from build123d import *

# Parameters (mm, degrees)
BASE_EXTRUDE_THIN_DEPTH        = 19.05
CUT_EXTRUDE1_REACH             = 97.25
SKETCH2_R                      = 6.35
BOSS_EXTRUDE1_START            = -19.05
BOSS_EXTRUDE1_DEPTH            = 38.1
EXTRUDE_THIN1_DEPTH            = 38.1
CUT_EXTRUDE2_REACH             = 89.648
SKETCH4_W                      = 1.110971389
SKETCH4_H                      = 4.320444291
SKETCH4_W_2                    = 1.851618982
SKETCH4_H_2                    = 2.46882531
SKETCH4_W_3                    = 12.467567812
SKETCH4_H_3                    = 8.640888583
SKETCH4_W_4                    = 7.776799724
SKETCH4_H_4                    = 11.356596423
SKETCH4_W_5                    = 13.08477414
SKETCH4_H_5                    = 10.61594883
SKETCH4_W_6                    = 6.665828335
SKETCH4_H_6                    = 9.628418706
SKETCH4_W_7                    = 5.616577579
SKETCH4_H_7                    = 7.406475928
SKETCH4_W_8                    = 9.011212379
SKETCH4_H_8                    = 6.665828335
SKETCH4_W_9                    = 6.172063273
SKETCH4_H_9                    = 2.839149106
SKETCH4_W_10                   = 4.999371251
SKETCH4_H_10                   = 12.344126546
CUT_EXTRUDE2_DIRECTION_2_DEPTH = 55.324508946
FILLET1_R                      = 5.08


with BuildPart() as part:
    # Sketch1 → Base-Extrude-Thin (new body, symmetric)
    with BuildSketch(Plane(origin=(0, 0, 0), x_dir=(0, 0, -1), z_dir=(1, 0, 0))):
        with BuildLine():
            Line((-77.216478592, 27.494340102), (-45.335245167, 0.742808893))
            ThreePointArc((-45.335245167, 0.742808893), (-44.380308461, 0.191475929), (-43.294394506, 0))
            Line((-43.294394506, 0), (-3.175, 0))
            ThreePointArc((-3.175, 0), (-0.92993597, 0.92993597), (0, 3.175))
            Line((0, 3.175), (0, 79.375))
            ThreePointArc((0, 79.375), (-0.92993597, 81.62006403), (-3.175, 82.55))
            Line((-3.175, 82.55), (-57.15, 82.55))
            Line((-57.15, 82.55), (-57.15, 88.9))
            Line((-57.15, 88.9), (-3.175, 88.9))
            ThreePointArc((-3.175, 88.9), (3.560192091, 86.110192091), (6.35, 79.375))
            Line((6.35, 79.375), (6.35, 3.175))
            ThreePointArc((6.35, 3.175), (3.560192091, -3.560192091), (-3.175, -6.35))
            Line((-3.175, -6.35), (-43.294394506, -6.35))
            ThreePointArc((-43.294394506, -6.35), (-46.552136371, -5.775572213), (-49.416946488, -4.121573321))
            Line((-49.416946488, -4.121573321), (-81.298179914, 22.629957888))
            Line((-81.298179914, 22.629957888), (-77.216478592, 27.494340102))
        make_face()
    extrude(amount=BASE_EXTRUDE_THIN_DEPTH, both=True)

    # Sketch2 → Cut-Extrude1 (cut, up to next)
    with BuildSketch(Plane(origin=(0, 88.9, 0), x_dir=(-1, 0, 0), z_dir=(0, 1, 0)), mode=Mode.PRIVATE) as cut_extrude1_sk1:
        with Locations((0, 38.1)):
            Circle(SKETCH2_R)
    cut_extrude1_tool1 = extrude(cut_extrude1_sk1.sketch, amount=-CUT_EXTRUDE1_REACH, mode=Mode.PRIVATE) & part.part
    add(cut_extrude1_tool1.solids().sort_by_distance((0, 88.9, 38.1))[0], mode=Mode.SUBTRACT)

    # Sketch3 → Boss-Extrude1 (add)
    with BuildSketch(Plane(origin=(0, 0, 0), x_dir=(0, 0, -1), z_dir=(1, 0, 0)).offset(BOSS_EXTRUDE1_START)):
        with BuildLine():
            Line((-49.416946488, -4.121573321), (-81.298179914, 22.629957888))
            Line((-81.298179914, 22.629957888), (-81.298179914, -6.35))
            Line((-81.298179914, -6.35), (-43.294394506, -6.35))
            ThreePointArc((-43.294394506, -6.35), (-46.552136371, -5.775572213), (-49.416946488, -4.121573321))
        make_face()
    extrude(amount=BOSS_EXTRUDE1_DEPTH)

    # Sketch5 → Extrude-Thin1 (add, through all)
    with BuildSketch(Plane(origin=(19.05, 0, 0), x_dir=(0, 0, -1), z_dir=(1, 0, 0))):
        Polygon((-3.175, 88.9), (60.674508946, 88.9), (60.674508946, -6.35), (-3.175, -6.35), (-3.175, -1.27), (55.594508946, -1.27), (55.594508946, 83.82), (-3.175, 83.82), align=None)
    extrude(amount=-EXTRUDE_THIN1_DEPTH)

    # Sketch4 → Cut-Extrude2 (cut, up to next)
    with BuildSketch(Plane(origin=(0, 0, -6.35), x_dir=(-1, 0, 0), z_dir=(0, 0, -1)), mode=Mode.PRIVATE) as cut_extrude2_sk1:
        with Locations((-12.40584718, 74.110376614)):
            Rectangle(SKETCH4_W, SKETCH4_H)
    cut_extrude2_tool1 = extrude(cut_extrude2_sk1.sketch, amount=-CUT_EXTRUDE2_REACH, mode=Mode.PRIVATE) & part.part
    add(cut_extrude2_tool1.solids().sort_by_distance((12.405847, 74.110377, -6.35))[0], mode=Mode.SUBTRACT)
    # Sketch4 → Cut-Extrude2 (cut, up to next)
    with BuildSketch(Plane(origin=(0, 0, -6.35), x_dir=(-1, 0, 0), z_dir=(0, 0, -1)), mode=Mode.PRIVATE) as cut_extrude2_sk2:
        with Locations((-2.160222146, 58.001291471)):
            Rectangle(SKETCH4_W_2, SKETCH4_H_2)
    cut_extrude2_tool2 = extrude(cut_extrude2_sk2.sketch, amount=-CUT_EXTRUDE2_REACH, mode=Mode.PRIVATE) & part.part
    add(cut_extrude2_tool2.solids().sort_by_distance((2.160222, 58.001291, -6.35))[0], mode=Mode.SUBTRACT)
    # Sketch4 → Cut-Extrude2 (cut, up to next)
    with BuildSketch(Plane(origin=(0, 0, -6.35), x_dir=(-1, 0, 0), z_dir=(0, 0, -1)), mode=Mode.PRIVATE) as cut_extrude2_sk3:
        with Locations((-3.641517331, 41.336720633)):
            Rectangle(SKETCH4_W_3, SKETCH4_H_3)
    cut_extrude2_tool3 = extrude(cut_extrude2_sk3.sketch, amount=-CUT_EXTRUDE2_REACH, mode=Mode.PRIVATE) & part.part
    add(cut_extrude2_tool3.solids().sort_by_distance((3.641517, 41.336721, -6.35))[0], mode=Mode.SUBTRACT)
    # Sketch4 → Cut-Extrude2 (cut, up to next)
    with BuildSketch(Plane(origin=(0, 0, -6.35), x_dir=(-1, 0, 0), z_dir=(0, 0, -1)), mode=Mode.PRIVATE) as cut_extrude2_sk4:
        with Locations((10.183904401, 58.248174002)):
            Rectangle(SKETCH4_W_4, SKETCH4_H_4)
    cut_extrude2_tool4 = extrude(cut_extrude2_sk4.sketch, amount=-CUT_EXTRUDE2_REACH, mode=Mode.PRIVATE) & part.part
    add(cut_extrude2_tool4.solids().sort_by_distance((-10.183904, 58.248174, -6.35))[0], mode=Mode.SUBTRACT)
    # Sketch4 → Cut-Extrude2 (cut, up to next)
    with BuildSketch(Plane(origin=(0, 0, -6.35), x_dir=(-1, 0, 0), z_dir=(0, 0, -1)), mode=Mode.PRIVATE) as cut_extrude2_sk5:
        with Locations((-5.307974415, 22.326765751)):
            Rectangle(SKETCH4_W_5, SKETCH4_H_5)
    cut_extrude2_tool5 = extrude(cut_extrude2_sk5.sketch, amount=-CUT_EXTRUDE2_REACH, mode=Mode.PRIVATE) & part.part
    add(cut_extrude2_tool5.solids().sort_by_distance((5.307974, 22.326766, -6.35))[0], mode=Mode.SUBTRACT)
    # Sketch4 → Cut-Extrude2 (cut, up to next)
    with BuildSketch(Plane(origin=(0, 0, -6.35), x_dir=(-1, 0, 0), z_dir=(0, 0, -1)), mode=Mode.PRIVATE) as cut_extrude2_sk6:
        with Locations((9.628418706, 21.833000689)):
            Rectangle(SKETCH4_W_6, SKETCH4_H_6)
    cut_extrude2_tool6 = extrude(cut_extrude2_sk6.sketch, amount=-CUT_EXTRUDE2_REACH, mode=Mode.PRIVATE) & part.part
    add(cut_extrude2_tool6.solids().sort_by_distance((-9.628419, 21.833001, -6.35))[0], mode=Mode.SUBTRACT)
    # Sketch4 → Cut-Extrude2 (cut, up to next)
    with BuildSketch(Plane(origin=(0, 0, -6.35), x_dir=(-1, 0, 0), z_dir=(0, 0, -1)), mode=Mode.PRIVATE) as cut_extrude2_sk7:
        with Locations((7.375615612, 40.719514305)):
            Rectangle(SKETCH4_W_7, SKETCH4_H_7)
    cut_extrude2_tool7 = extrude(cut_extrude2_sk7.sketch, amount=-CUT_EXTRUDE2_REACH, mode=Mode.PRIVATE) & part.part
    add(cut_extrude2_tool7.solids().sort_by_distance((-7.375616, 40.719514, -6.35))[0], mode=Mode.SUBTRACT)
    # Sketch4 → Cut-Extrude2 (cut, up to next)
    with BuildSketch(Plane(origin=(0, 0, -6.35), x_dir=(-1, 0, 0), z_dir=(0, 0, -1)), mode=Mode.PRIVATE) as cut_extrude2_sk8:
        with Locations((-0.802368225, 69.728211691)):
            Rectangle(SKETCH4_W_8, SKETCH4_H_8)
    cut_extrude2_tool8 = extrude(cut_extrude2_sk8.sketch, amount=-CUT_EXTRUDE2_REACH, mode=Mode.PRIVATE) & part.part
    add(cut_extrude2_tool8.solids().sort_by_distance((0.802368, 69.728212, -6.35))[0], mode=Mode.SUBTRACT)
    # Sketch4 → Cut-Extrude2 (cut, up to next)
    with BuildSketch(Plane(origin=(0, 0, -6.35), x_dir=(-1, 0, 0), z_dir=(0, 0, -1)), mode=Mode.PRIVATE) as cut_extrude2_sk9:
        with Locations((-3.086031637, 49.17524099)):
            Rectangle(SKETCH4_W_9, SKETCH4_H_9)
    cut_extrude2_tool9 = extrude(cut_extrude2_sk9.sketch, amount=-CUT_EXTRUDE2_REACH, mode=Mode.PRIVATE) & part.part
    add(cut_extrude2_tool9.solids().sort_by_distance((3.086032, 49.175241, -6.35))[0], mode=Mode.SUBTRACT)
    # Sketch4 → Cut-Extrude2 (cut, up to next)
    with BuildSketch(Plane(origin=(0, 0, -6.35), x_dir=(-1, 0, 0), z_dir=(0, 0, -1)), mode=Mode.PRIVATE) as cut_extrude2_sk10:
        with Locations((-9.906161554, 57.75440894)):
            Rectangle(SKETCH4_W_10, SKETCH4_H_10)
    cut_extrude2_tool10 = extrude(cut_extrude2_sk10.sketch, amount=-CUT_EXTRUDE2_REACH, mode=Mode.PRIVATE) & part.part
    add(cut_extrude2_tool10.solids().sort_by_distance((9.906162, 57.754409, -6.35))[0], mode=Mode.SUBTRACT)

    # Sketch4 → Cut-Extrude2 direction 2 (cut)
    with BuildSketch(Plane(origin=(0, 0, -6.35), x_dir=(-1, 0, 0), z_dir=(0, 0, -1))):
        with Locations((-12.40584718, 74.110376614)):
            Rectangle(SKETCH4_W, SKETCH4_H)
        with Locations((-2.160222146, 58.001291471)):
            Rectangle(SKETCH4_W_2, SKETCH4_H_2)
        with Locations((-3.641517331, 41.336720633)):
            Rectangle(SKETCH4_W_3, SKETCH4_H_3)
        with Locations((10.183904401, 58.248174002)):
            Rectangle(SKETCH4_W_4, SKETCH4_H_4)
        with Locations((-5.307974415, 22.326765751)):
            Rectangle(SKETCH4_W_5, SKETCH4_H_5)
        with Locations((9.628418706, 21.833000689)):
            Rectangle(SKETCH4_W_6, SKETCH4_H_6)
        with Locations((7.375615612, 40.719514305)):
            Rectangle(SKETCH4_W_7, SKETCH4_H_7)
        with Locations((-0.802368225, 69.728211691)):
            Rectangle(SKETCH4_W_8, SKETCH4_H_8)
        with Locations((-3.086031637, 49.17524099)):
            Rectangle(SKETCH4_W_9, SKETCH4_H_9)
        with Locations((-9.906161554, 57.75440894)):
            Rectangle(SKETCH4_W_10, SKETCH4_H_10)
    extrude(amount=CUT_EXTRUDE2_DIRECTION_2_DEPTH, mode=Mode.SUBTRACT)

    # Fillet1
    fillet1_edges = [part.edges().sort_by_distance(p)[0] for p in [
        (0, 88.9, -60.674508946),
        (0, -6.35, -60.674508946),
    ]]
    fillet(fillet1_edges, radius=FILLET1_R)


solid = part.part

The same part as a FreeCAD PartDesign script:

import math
import FreeCAD as App
import Part
import Sketcher
from FreeCAD import Vector
Q = App.Units.Quantity


def edges_at(feature, points):
    """Names of the edges that pass closest to the given points."""
    edges = feature.Shape.Edges
    near = lambda p: min(range(len(edges)), key=lambda i: edges[i].distToShape(Part.Vertex(*p))[0])
    return sorted({f"Edge{near(p) + 1}" for p in points})

doc = App.newDocument("Part")
body = doc.addObject("PartDesign::Body", "Body")

# Sketch on YZ plane
sketch1 = body.newObject("Sketcher::SketchObject", "Sketch")
sketch1.AttachmentSupport = (doc.getObject("YZ_Plane"), [""])
sketch1.MapMode = "FlatFace"
sketch1.addGeometry([
    Part.LineSegment(Vector(0.7, 45.3, 0), Vector(27.5, 77.2, 0)),  # 0
    Part.LineSegment(Vector(27.5, 77.2, 0), Vector(22.6, 81.3, 0)),  # 1
    Part.LineSegment(Vector(22.6, 81.3, 0), Vector(-4.1, 49.4, 0)),  # 2
    Part.ArcOfCircle(Part.Circle(Vector(3.2, 43.3, 0), Vector(0, 0, 1), 9.5), math.radians(140), math.radians(180)),  # 3
    Part.LineSegment(Vector(-6.3, 43.3, 0), Vector(-6.3, 3.2, 0)),  # 4
    Part.ArcOfCircle(Part.Circle(Vector(3.2, 3.2, 0), Vector(0, 0, 1), 9.5), math.radians(180), math.radians(270)),  # 5
    Part.LineSegment(Vector(3.2, -6.3, 0), Vector(79.4, -6.3, 0)),  # 6
    Part.ArcOfCircle(Part.Circle(Vector(79.4, 3.2, 0), Vector(0, 0, 1), 9.5), math.radians(-90), math.radians(0)),  # 7
    Part.LineSegment(Vector(88.9, 3.2, 0), Vector(88.9, 57.1, 0)),  # 8
    Part.LineSegment(Vector(88.9, 57.1, 0), Vector(82.5, 57.1, 0)),  # 9
    Part.LineSegment(Vector(82.5, 57.1, 0), Vector(82.5, 3.2, 0)),  # 10
    Part.ArcOfCircle(Part.Circle(Vector(79.4, 3.2, 0), Vector(0, 0, 1), 3.2), math.radians(-90), math.radians(0)),  # 11
    Part.LineSegment(Vector(79.4, 0, 0), Vector(3.2, 0, 0)),  # 12
    Part.ArcOfCircle(Part.Circle(Vector(3.2, 3.2, 0), Vector(0, 0, 1), 3.2), math.radians(-180), math.radians(-90)),  # 13
    Part.LineSegment(Vector(0, 3.2, 0), Vector(0, 43.3, 0)),  # 14
    Part.ArcOfCircle(Part.Circle(Vector(3.2, 43.3, 0), Vector(0, 0, 1), 3.2), math.radians(140), math.radians(180)),  # 15
], False)
sketch1.addConstraint([
    Sketcher.Constraint("Coincident", 0, 2, 1, 1),
    Sketcher.Constraint("Coincident", 1, 2, 2, 1),
    Sketcher.Constraint("Tangent", 2, 2, 3, 1),
    Sketcher.Constraint("Tangent", 3, 2, 4, 1),
    Sketcher.Constraint("Tangent", 4, 2, 5, 1),
    Sketcher.Constraint("Tangent", 5, 2, 6, 1),
    Sketcher.Constraint("Tangent", 6, 2, 7, 1),
    Sketcher.Constraint("Tangent", 7, 2, 8, 1),
    Sketcher.Constraint("Coincident", 8, 2, 9, 1),
    Sketcher.Constraint("Coincident", 9, 2, 10, 1),
    Sketcher.Constraint("Tangent", 10, 2, 11, 2),
    Sketcher.Constraint("Tangent", 11, 1, 12, 1),
    Sketcher.Constraint("Tangent", 12, 2, 13, 2),
    Sketcher.Constraint("Tangent", 13, 1, 14, 1),
    Sketcher.Constraint("Tangent", 14, 2, 15, 2),
    Sketcher.Constraint("Tangent", 15, 1, 0, 1),
    Sketcher.Constraint("Vertical", 4),
    Sketcher.Constraint("Horizontal", 6),
    Sketcher.Constraint("Vertical", 8),
    Sketcher.Constraint("Horizontal", 9),
    Sketcher.Constraint("Vertical", 10),
    Sketcher.Constraint("Horizontal", 12),
    Sketcher.Constraint("Vertical", 14),
    Sketcher.Constraint("Coincident", 11, 3, 7, 3),
    Sketcher.Constraint("Coincident", 13, 3, 5, 3),
    Sketcher.Constraint("Coincident", 15, 3, 3, 3),
    Sketcher.Constraint("Equal", 3, 5),
    Sketcher.Constraint("Equal", 5, 7),
    Sketcher.Constraint("PointOnObject", 11, 1, -1),
    Sketcher.Constraint("PointOnObject", 13, 1, -2),
    Sketcher.Constraint("Perpendicular", 0, 1),
    Sketcher.Constraint("Perpendicular", 1, 2),
    Sketcher.Constraint("DistanceX", 6, 1, 6, 2, Q("3 in")),
    Sketcher.Constraint("Angle", 0, Q("50 deg")),
    Sketcher.Constraint("Radius", 3, Q("0.375 in")),
    Sketcher.Constraint("Radius", 11, Q("0.125 in")),
    Sketcher.Constraint("DistanceY", 6, 2, 8, 2, Q("2.5 in")),
    Sketcher.Constraint("DistanceY", 4, 2, 4, 1, Q("40.119395 mm")),
    Sketcher.Constraint("DistanceX", -1, 1, 0, 2, Q("27.49434 mm")),
])
pad1 = body.newObject("PartDesign::Pad", "Pad")
pad1.Profile = sketch1
pad1.Length = Q("1.5 in")
pad1.Midplane = True

# Sketch on XZ plane
sketch2 = body.newObject("Sketcher::SketchObject", "Sketch001")
sketch2.AttachmentSupport = (doc.getObject("XZ_Plane"), [""])
sketch2.MapMode = "FlatFace"
sketch2.AttachmentOffset = App.Placement(Vector(0, 0, -3.5 * 25.4), App.Rotation())
sketch2.addGeometry(Part.Circle(Vector(0, 38, 0), Vector(0, 0, 1), 6), False)
sketch2.addConstraint([
    Sketcher.Constraint("PointOnObject", 0, 3, -2),
    Sketcher.Constraint("Diameter", 0, Q("0.5 in")),
    Sketcher.Constraint("DistanceY", -1, 1, 0, 3, Q("1.5 in")),
])
pocket1 = body.newObject("PartDesign::Pocket", "Pocket")
pocket1.Profile = sketch2
pocket1.Type = "UpToFirst"
pocket1.Reversed = True

# Sketch on YZ plane
sketch3 = body.newObject("Sketcher::SketchObject", "Sketch002")
sketch3.AttachmentSupport = (doc.getObject("YZ_Plane"), [""])
sketch3.MapMode = "FlatFace"
sketch3.AttachmentOffset = App.Placement(Vector(0, 0, -0.75 * 25.4), App.Rotation())
sketch3.addGeometry([
    Part.LineSegment(Vector(-4, 49, 0), Vector(23, 81, 0)),
    Part.LineSegment(Vector(23, 81, 0), Vector(-6, 81, 0)),
    Part.LineSegment(Vector(-6, 81, 0), Vector(-6, 43, 0)),
    Part.ArcOfCircle(Part.Circle(Vector(3, 43, 0), Vector(0, 0, 1), 10), math.radians(140), math.radians(180)),
], False)
sketch3.addConstraint([
    Sketcher.Constraint("Coincident", 0, 2, 1, 1),
    Sketcher.Constraint("Coincident", 1, 2, 2, 1),
    Sketcher.Constraint("Tangent", 2, 2, 3, 2),
    Sketcher.Constraint("Tangent", 3, 1, 0, 1),
    Sketcher.Constraint("Horizontal", 1),
    Sketcher.Constraint("Vertical", 2),
    Sketcher.Constraint("Angle", 0, Q("50 deg")),
    Sketcher.Constraint("Radius", 3, Q("0.375 in")),
    Sketcher.Constraint("DistanceX", 1, 2, -1, 1, Q("0.25 in")),
    Sketcher.Constraint("DistanceX", 1, 2, 1, 1, Q("28.979958 mm")),
    Sketcher.Constraint("DistanceY", -1, 1, 0, 2, Q("81.29818 mm")),
])
pad2 = body.newObject("PartDesign::Pad", "Pad001")
pad2.Profile = sketch3
pad2.Length = Q("1.5 in")

# Sketch on YZ plane
sketch4 = body.newObject("Sketcher::SketchObject", "Sketch003")
sketch4.AttachmentSupport = (doc.getObject("YZ_Plane"), [""])
sketch4.MapMode = "FlatFace"
sketch4.AttachmentOffset = App.Placement(Vector(0, 0, 0.75 * 25.4), App.Rotation())
sketch4.addGeometry([
    Part.LineSegment(Vector(89, -61, 0), Vector(89, 3, 0)),  # 0
    Part.LineSegment(Vector(89, 3, 0), Vector(84, 3, 0)),  # 1
    Part.LineSegment(Vector(84, 3, 0), Vector(84, -56, 0)),  # 2
    Part.LineSegment(Vector(84, -56, 0), Vector(-1, -56, 0)),  # 3
    Part.LineSegment(Vector(-1, -56, 0), Vector(-1, 3, 0)),  # 4
    Part.LineSegment(Vector(-1, 3, 0), Vector(-6, 3, 0)),  # 5
    Part.LineSegment(Vector(-6, 3, 0), Vector(-6, -61, 0)),  # 6
    Part.LineSegment(Vector(-6, -61, 0), Vector(89, -61, 0)),  # 7
], False)
sketch4.addConstraint([
    Sketcher.Constraint("Coincident", 0, 2, 1, 1),
    Sketcher.Constraint("Coincident", 1, 2, 2, 1),
    Sketcher.Constraint("Coincident", 2, 2, 3, 1),
    Sketcher.Constraint("Coincident", 3, 2, 4, 1),
    Sketcher.Constraint("Coincident", 4, 2, 5, 1),
    Sketcher.Constraint("Coincident", 5, 2, 6, 1),
    Sketcher.Constraint("Coincident", 6, 2, 7, 1),
    Sketcher.Constraint("Coincident", 7, 2, 0, 1),
    Sketcher.Constraint("Vertical", 0),
    Sketcher.Constraint("Horizontal", 1),
    Sketcher.Constraint("Vertical", 2),
    Sketcher.Constraint("Horizontal", 3),
    Sketcher.Constraint("Vertical", 4),
    Sketcher.Constraint("Horizontal", 5),
    Sketcher.Constraint("Vertical", 6),
    Sketcher.Constraint("Horizontal", 7),
    Sketcher.Constraint("Horizontal", 1, 2, 4, 2),
    Sketcher.Constraint("Equal", 1, 5),
    Sketcher.Constraint("DistanceX", 1, 2, 1, 1, Q("0.2 in")),
    Sketcher.Constraint("DistanceX", 3, 2, 3, 1, Q("3.35 in")),
    Sketcher.Constraint("DistanceX", -1, 1, 0, 2, Q("3.5 in")),
    Sketcher.Constraint("DistanceY", 6, 2, 3, 2, Q("0.2 in")),
    Sketcher.Constraint("DistanceY", -1, 1, 0, 2, Q("0.125 in")),
    Sketcher.Constraint("DistanceY", 0, 1, 0, 2, Q("63.849509 mm")),
])
pad3 = body.newObject("PartDesign::Pad", "Pad002")
pad3.Profile = sketch4
pad3.Length = Q("1.5 in")
pad3.Reversed = True

# Sketch on XY plane
sketch5 = body.newObject("Sketcher::SketchObject", "Sketch004")
sketch5.AttachmentSupport = (doc.getObject("XY_Plane"), [""])
sketch5.MapMode = "FlatFace"
sketch5.AttachmentOffset = App.Placement(Vector(0, 0, -0.25 * 25.4), App.Rotation())
sketch5.addGeometry([
    Part.LineSegment(Vector(13, 76.3, 0), Vector(13, 72, 0)),
    Part.LineSegment(Vector(13, 72, 0), Vector(11.9, 72, 0)),
    Part.LineSegment(Vector(11.9, 72, 0), Vector(11.9, 76.3, 0)),
    Part.LineSegment(Vector(11.9, 76.3, 0), Vector(13, 76.3, 0)),
], False)
sketch5.addConstraint([
    Sketcher.Constraint("Coincident", 0, 2, 1, 1),
    Sketcher.Constraint("Coincident", 1, 2, 2, 1),
    Sketcher.Constraint("Coincident", 2, 2, 3, 1),
    Sketcher.Constraint("Coincident", 3, 2, 0, 1),
    Sketcher.Constraint("Vertical", 0),
    Sketcher.Constraint("Horizontal", 1),
    Sketcher.Constraint("Vertical", 2),
    Sketcher.Constraint("Horizontal", 3),
    Sketcher.Constraint("DistanceX", 1, 2, 1, 1, Q("1.110971 mm")),
    Sketcher.Constraint("DistanceY", -1, 1, 2, 2, Q("76.270599 mm")),
    Sketcher.Constraint("DistanceY", 0, 2, 0, 1, Q("4.320444 mm")),
    Sketcher.Constraint("DistanceX", -1, 1, 1, 2, Q("11.850361 mm")),
])
pocket2 = body.newObject("PartDesign::Pocket", "Pocket001")
pocket2.Profile = sketch5
pocket2.Type = "UpToFirst"
pocket2.Reversed = True

# Sketch on XY plane
sketch6 = body.newObject("Sketcher::SketchObject", "Sketch005")
sketch6.AttachmentSupport = (doc.getObject("XY_Plane"), [""])
sketch6.MapMode = "FlatFace"
sketch6.AttachmentOffset = App.Placement(Vector(0, 0, -0.25 * 25.4), App.Rotation())
sketch6.addGeometry([
    Part.LineSegment(Vector(3.1, 59.2, 0), Vector(3.1, 56.8, 0)),
    Part.LineSegment(Vector(3.1, 56.8, 0), Vector(1.2, 56.8, 0)),
    Part.LineSegment(Vector(1.2, 56.8, 0), Vector(1.2, 59.2, 0)),
    Part.LineSegment(Vector(1.2, 59.2, 0), Vector(3.1, 59.2, 0)),
], False)
sketch6.addConstraint([
    Sketcher.Constraint("Coincident", 0, 2, 1, 1),
    Sketcher.Constraint("Coincident", 1, 2, 2, 1),
    Sketcher.Constraint("Coincident", 2, 2, 3, 1),
    Sketcher.Constraint("Coincident", 3, 2, 0, 1),
    Sketcher.Constraint("Vertical", 0),
    Sketcher.Constraint("Horizontal", 1),
    Sketcher.Constraint("Vertical", 2),
    Sketcher.Constraint("Horizontal", 3),
    Sketcher.Constraint("DistanceX", 1, 2, 1, 1, Q("1.851619 mm")),
    Sketcher.Constraint("DistanceY", 0, 2, 0, 1, Q("2.468825 mm")),
    Sketcher.Constraint("DistanceX", -1, 1, 0, 2, Q("3.086032 mm")),
    Sketcher.Constraint("DistanceY", -1, 1, 0, 2, Q("56.766879 mm")),
])
pocket3 = body.newObject("PartDesign::Pocket", "Pocket002")
pocket3.Profile = sketch6
pocket3.Type = "UpToFirst"
pocket3.Reversed = True

# Sketch on XY plane
sketch7 = body.newObject("Sketcher::SketchObject", "Sketch006")
sketch7.AttachmentSupport = (doc.getObject("XY_Plane"), [""])
sketch7.MapMode = "FlatFace"
sketch7.AttachmentOffset = App.Placement(Vector(0, 0, -0.25 * 25.4), App.Rotation())
sketch7.addGeometry([
    Part.LineSegment(Vector(10, 46, 0), Vector(10, 37, 0)),
    Part.LineSegment(Vector(10, 37, 0), Vector(-3, 37, 0)),
    Part.LineSegment(Vector(-3, 37, 0), Vector(-3, 46, 0)),
    Part.LineSegment(Vector(-3, 46, 0), Vector(10, 46, 0)),
], False)
sketch7.addConstraint([
    Sketcher.Constraint("Coincident", 0, 2, 1, 1),
    Sketcher.Constraint("Coincident", 1, 2, 2, 1),
    Sketcher.Constraint("Coincident", 2, 2, 3, 1),
    Sketcher.Constraint("Coincident", 3, 2, 0, 1),
    Sketcher.Constraint("Vertical", 0),
    Sketcher.Constraint("Horizontal", 1),
    Sketcher.Constraint("Vertical", 2),
    Sketcher.Constraint("Horizontal", 3),
    Sketcher.Constraint("DistanceY", 0, 2, 0, 1, Q("8.640889 mm")),
    Sketcher.Constraint("DistanceX", -1, 1, 0, 2, Q("9.875301 mm")),
    Sketcher.Constraint("DistanceX", 1, 2, 1, 1, Q("12.467568 mm")),
    Sketcher.Constraint("DistanceY", -1, 1, 0, 2, Q("37.016276 mm")),
])
pocket4 = body.newObject("PartDesign::Pocket", "Pocket003")
pocket4.Profile = sketch7
pocket4.Type = "UpToFirst"
pocket4.Reversed = True

# Sketch on XY plane
sketch8 = body.newObject("Sketcher::SketchObject", "Sketch007")
sketch8.AttachmentSupport = (doc.getObject("XY_Plane"), [""])
sketch8.MapMode = "FlatFace"
sketch8.AttachmentOffset = App.Placement(Vector(0, 0, -0.25 * 25.4), App.Rotation())
sketch8.addGeometry([
    Part.LineSegment(Vector(-6, 64, 0), Vector(-6, 53, 0)),
    Part.LineSegment(Vector(-6, 53, 0), Vector(-14, 53, 0)),
    Part.LineSegment(Vector(-14, 53, 0), Vector(-14, 64, 0)),
    Part.LineSegment(Vector(-14, 64, 0), Vector(-6, 64, 0)),
], False)
sketch8.addConstraint([
    Sketcher.Constraint("Coincident", 0, 2, 1, 1),
    Sketcher.Constraint("Coincident", 1, 2, 2, 1),
    Sketcher.Constraint("Coincident", 2, 2, 3, 1),
    Sketcher.Constraint("Coincident", 3, 2, 0, 1),
    Sketcher.Constraint("Vertical", 0),
    Sketcher.Constraint("Horizontal", 1),
    Sketcher.Constraint("Vertical", 2),
    Sketcher.Constraint("Horizontal", 3),
    Sketcher.Constraint("DistanceX", 1, 2, 1, 1, Q("7.7768 mm")),
    Sketcher.Constraint("DistanceY", 0, 2, 0, 1, Q("11.356596 mm")),
    Sketcher.Constraint("DistanceX", 0, 2, -1, 1, Q("6.295505 mm")),
    Sketcher.Constraint("DistanceY", -1, 1, 0, 2, Q("52.569876 mm")),
])
pocket5 = body.newObject("PartDesign::Pocket", "Pocket004")
pocket5.Profile = sketch8
pocket5.Type = "UpToFirst"
pocket5.Reversed = True

# Sketch on XY plane
sketch9 = body.newObject("Sketcher::SketchObject", "Sketch008")
sketch9.AttachmentSupport = (doc.getObject("XY_Plane"), [""])
sketch9.MapMode = "FlatFace"
sketch9.AttachmentOffset = App.Placement(Vector(0, 0, -0.25 * 25.4), App.Rotation())
sketch9.addGeometry([
    Part.LineSegment(Vector(12, 28, 0), Vector(12, 17, 0)),
    Part.LineSegment(Vector(12, 17, 0), Vector(-1, 17, 0)),
    Part.LineSegment(Vector(-1, 17, 0), Vector(-1, 28, 0)),
    Part.LineSegment(Vector(-1, 28, 0), Vector(12, 28, 0)),
], False)
sketch9.addConstraint([
    Sketcher.Constraint("Coincident", 0, 2, 1, 1),
    Sketcher.Constraint("Coincident", 1, 2, 2, 1),
    Sketcher.Constraint("Coincident", 2, 2, 3, 1),
    Sketcher.Constraint("Coincident", 3, 2, 0, 1),
    Sketcher.Constraint("Vertical", 0),
    Sketcher.Constraint("Horizontal", 1),
    Sketcher.Constraint("Vertical", 2),
    Sketcher.Constraint("Horizontal", 3),
    Sketcher.Constraint("DistanceY", 0, 2, 0, 1, Q("10.615949 mm")),
    Sketcher.Constraint("DistanceX", 1, 2, 1, 1, Q("13.084774 mm")),
    Sketcher.Constraint("DistanceX", -1, 1, 0, 2, Q("11.850361 mm")),
    Sketcher.Constraint("DistanceY", -1, 1, 0, 2, Q("17.018791 mm")),
])
pocket6 = body.newObject("PartDesign::Pocket", "Pocket005")
pocket6.Profile = sketch9
pocket6.Type = "UpToFirst"
pocket6.Reversed = True

# Sketch on XY plane
sketch10 = body.newObject("Sketcher::SketchObject", "Sketch009")
sketch10.AttachmentSupport = (doc.getObject("XY_Plane"), [""])
sketch10.MapMode = "FlatFace"
sketch10.AttachmentOffset = App.Placement(Vector(0, 0, -0.25 * 25.4), App.Rotation())
sketch10.addGeometry([
    Part.LineSegment(Vector(-6, 27, 0), Vector(-6, 17, 0)),
    Part.LineSegment(Vector(-6, 17, 0), Vector(-13, 17, 0)),
    Part.LineSegment(Vector(-13, 17, 0), Vector(-13, 27, 0)),
    Part.LineSegment(Vector(-13, 27, 0), Vector(-6, 27, 0)),
], False)
sketch10.addConstraint([
    Sketcher.Constraint("Coincident", 0, 2, 1, 1),
    Sketcher.Constraint("Coincident", 1, 2, 2, 1),
    Sketcher.Constraint("Coincident", 2, 2, 3, 1),
    Sketcher.Constraint("Coincident", 3, 2, 0, 1),
    Sketcher.Constraint("Vertical", 0),
    Sketcher.Constraint("Horizontal", 1),
    Sketcher.Constraint("Vertical", 2),
    Sketcher.Constraint("Horizontal", 3),
    Sketcher.Constraint("DistanceX", 1, 2, 1, 1, Q("6.665828 mm")),
    Sketcher.Constraint("DistanceY", 0, 2, 0, 1, Q("9.628419 mm")),
    Sketcher.Constraint("DistanceY", -1, 1, 0, 2, Q("17.018791 mm")),
    Sketcher.Constraint("DistanceX", 0, 2, -1, 1, Q("6.295505 mm")),
])
pocket7 = body.newObject("PartDesign::Pocket", "Pocket006")
pocket7.Profile = sketch10
pocket7.Type = "UpToFirst"
pocket7.Reversed = True

# Sketch on XY plane
sketch11 = body.newObject("Sketcher::SketchObject", "Sketch010")
sketch11.AttachmentSupport = (doc.getObject("XY_Plane"), [""])
sketch11.MapMode = "FlatFace"
sketch11.AttachmentOffset = App.Placement(Vector(0, 0, -0.25 * 25.4), App.Rotation())
sketch11.addGeometry([
    Part.LineSegment(Vector(-5, 44, 0), Vector(-5, 37, 0)),
    Part.LineSegment(Vector(-5, 37, 0), Vector(-10, 37, 0)),
    Part.LineSegment(Vector(-10, 37, 0), Vector(-10, 44, 0)),
    Part.LineSegment(Vector(-10, 44, 0), Vector(-5, 44, 0)),
], False)
sketch11.addConstraint([
    Sketcher.Constraint("Coincident", 0, 2, 1, 1),
    Sketcher.Constraint("Coincident", 1, 2, 2, 1),
    Sketcher.Constraint("Coincident", 2, 2, 3, 1),
    Sketcher.Constraint("Coincident", 3, 2, 0, 1),
    Sketcher.Constraint("Vertical", 0),
    Sketcher.Constraint("Horizontal", 1),
    Sketcher.Constraint("Vertical", 2),
    Sketcher.Constraint("Horizontal", 3),
    Sketcher.Constraint("DistanceX", 1, 2, 1, 1, Q("5.616578 mm")),
    Sketcher.Constraint("DistanceY", 0, 2, 0, 1, Q("7.406476 mm")),
    Sketcher.Constraint("DistanceX", 0, 2, -1, 1, Q("4.567327 mm")),
    Sketcher.Constraint("DistanceY", -1, 1, 0, 2, Q("37.016276 mm")),
])
pocket8 = body.newObject("PartDesign::Pocket", "Pocket007")
pocket8.Profile = sketch11
pocket8.Type = "UpToFirst"
pocket8.Reversed = True

# Sketch on XY plane
sketch12 = body.newObject("Sketcher::SketchObject", "Sketch011")
sketch12.AttachmentSupport = (doc.getObject("XY_Plane"), [""])
sketch12.MapMode = "FlatFace"
sketch12.AttachmentOffset = App.Placement(Vector(0, 0, -0.25 * 25.4), App.Rotation())
sketch12.addGeometry([
    Part.LineSegment(Vector(5, 73, 0), Vector(5, 66, 0)),
    Part.LineSegment(Vector(5, 66, 0), Vector(-4, 66, 0)),
    Part.LineSegment(Vector(-4, 66, 0), Vector(-4, 73, 0)),
    Part.LineSegment(Vector(-4, 73, 0), Vector(5, 73, 0)),
], False)
sketch12.addConstraint([
    Sketcher.Constraint("Coincident", 0, 2, 1, 1),
    Sketcher.Constraint("Coincident", 1, 2, 2, 1),
    Sketcher.Constraint("Coincident", 2, 2, 3, 1),
    Sketcher.Constraint("Coincident", 3, 2, 0, 1),
    Sketcher.Constraint("Vertical", 0),
    Sketcher.Constraint("Horizontal", 1),
    Sketcher.Constraint("Vertical", 2),
    Sketcher.Constraint("Horizontal", 3),
    Sketcher.Constraint("DistanceY", 0, 2, 0, 1, Q("6.665828 mm")),
    Sketcher.Constraint("DistanceX", 1, 2, 1, 1, Q("9.011212 mm")),
    Sketcher.Constraint("DistanceX", -1, 1, 0, 2, Q("5.307974 mm")),
    Sketcher.Constraint("DistanceY", -1, 1, 0, 2, Q("66.395298 mm")),
])
pocket9 = body.newObject("PartDesign::Pocket", "Pocket008")
pocket9.Profile = sketch12
pocket9.Type = "UpToFirst"
pocket9.Reversed = True

# Sketch on XY plane
sketch13 = body.newObject("Sketcher::SketchObject", "Sketch012")
sketch13.AttachmentSupport = (doc.getObject("XY_Plane"), [""])
sketch13.MapMode = "FlatFace"
sketch13.AttachmentOffset = App.Placement(Vector(0, 0, -0.25 * 25.4), App.Rotation())
sketch13.addGeometry([
    Part.LineSegment(Vector(6.2, 50.6, 0), Vector(6.2, 47.8, 0)),
    Part.LineSegment(Vector(6.2, 47.8, 0), Vector(0, 47.8, 0)),
    Part.LineSegment(Vector(0, 47.8, 0), Vector(0, 50.6, 0)),
    Part.LineSegment(Vector(0, 50.6, 0), Vector(6.2, 50.6, 0)),
], False)
sketch13.addConstraint([
    Sketcher.Constraint("Coincident", 0, 2, 1, 1),
    Sketcher.Constraint("Coincident", 1, 2, 2, 1),
    Sketcher.Constraint("Coincident", 2, 2, 3, 1),
    Sketcher.Constraint("Coincident", 3, 2, 0, 1),
    Sketcher.Constraint("Vertical", 0),
    Sketcher.Constraint("Horizontal", 1),
    Sketcher.Constraint("Vertical", 2),
    Sketcher.Constraint("Horizontal", 3),
    Sketcher.Constraint("PointOnObject", 1, 2, -2),
    Sketcher.Constraint("DistanceY", 0, 2, 0, 1, Q("2.839149 mm")),
    Sketcher.Constraint("DistanceX", 1, 2, 1, 1, Q("6.172063 mm")),
    Sketcher.Constraint("DistanceY", -1, 1, 0, 2, Q("47.755666 mm")),
])
pocket10 = body.newObject("PartDesign::Pocket", "Pocket009")
pocket10.Profile = sketch13
pocket10.Type = "UpToFirst"
pocket10.Reversed = True

# Sketch on XY plane
sketch14 = body.newObject("Sketcher::SketchObject", "Sketch013")
sketch14.AttachmentSupport = (doc.getObject("XY_Plane"), [""])
sketch14.MapMode = "FlatFace"
sketch14.AttachmentOffset = App.Placement(Vector(0, 0, -0.25 * 25.4), App.Rotation())
sketch14.addGeometry([
    Part.LineSegment(Vector(12.4, 63.9, 0), Vector(12.4, 51.6, 0)),
    Part.LineSegment(Vector(12.4, 51.6, 0), Vector(7.4, 51.6, 0)),
    Part.LineSegment(Vector(7.4, 51.6, 0), Vector(7.4, 63.9, 0)),
    Part.LineSegment(Vector(7.4, 63.9, 0), Vector(12.4, 63.9, 0)),
], False)
sketch14.addConstraint([
    Sketcher.Constraint("Coincident", 0, 2, 1, 1),
    Sketcher.Constraint("Coincident", 1, 2, 2, 1),
    Sketcher.Constraint("Coincident", 2, 2, 3, 1),
    Sketcher.Constraint("Coincident", 3, 2, 0, 1),
    Sketcher.Constraint("Vertical", 0),
    Sketcher.Constraint("Horizontal", 1),
    Sketcher.Constraint("Vertical", 2),
    Sketcher.Constraint("Horizontal", 3),
    Sketcher.Constraint("DistanceX", 1, 2, 1, 1, Q("4.999371 mm")),
    Sketcher.Constraint("DistanceY", 0, 2, 0, 1, Q("12.344127 mm")),
    Sketcher.Constraint("DistanceX", -1, 1, 0, 2, Q("12.405847 mm")),
    Sketcher.Constraint("DistanceY", -1, 1, 0, 2, Q("51.582346 mm")),
])
pocket11 = body.newObject("PartDesign::Pocket", "Pocket010")
pocket11.Profile = sketch14
pocket11.Type = "UpToFirst"
pocket11.Reversed = True

# Sketch on XY plane
sketch15 = body.newObject("Sketcher::SketchObject", "Sketch014")
sketch15.AttachmentSupport = (doc.getObject("XY_Plane"), [""])
sketch15.MapMode = "FlatFace"
sketch15.AttachmentOffset = App.Placement(Vector(0, 0, -0.25 * 25.4), App.Rotation())
sketch15.addGeometry([
    Part.LineSegment(Vector(13, 76.3, 0), Vector(13, 72, 0)),  # 0
    Part.LineSegment(Vector(13, 72, 0), Vector(11.9, 72, 0)),  # 1
    Part.LineSegment(Vector(11.9, 72, 0), Vector(11.9, 76.3, 0)),  # 2
    Part.LineSegment(Vector(11.9, 76.3, 0), Vector(13, 76.3, 0)),  # 3
    Part.LineSegment(Vector(3.1, 59.2, 0), Vector(3.1, 56.8, 0)),  # 4
    Part.LineSegment(Vector(3.1, 56.8, 0), Vector(1.2, 56.8, 0)),  # 5
    Part.LineSegment(Vector(1.2, 56.8, 0), Vector(1.2, 59.2, 0)),  # 6
    Part.LineSegment(Vector(1.2, 59.2, 0), Vector(3.1, 59.2, 0)),  # 7
    Part.LineSegment(Vector(9.9, 45.7, 0), Vector(9.9, 37, 0)),  # 8
    Part.LineSegment(Vector(9.9, 37, 0), Vector(-2.6, 37, 0)),  # 9
    Part.LineSegment(Vector(-2.6, 37, 0), Vector(-2.6, 45.7, 0)),  # 10
    Part.LineSegment(Vector(-2.6, 45.7, 0), Vector(9.9, 45.7, 0)),  # 11
    Part.LineSegment(Vector(-6.3, 63.9, 0), Vector(-6.3, 52.6, 0)),  # 12
    Part.LineSegment(Vector(-6.3, 52.6, 0), Vector(-14.1, 52.6, 0)),  # 13
    Part.LineSegment(Vector(-14.1, 52.6, 0), Vector(-14.1, 63.9, 0)),  # 14
    Part.LineSegment(Vector(-14.1, 63.9, 0), Vector(-6.3, 63.9, 0)),  # 15
    Part.LineSegment(Vector(11.9, 27.6, 0), Vector(11.9, 17, 0)),  # 16
    Part.LineSegment(Vector(11.9, 17, 0), Vector(-1.2, 17, 0)),  # 17
    Part.LineSegment(Vector(-1.2, 17, 0), Vector(-1.2, 27.6, 0)),  # 18
    Part.LineSegment(Vector(-1.2, 27.6, 0), Vector(11.9, 27.6, 0)),  # 19
    Part.LineSegment(Vector(-6.3, 26.6, 0), Vector(-6.3, 17, 0)),  # 20
    Part.LineSegment(Vector(-6.3, 17, 0), Vector(-13, 17, 0)),  # 21
    Part.LineSegment(Vector(-13, 17, 0), Vector(-13, 26.6, 0)),  # 22
    Part.LineSegment(Vector(-13, 26.6, 0), Vector(-6.3, 26.6, 0)),  # 23
    Part.LineSegment(Vector(-4.6, 44.4, 0), Vector(-4.6, 37, 0)),  # 24
    Part.LineSegment(Vector(-4.6, 37, 0), Vector(-10.2, 37, 0)),  # 25
    Part.LineSegment(Vector(-10.2, 37, 0), Vector(-10.2, 44.4, 0)),  # 26
    Part.LineSegment(Vector(-10.2, 44.4, 0), Vector(-4.6, 44.4, 0)),  # 27
    Part.LineSegment(Vector(5.3, 73.1, 0), Vector(5.3, 66.4, 0)),  # 28
    Part.LineSegment(Vector(5.3, 66.4, 0), Vector(-3.7, 66.4, 0)),  # 29
    Part.LineSegment(Vector(-3.7, 66.4, 0), Vector(-3.7, 73.1, 0)),  # 30
    Part.LineSegment(Vector(-3.7, 73.1, 0), Vector(5.3, 73.1, 0)),  # 31
    Part.LineSegment(Vector(6.2, 50.6, 0), Vector(6.2, 47.8, 0)),  # 32
    Part.LineSegment(Vector(6.2, 47.8, 0), Vector(0, 47.8, 0)),  # 33
    Part.LineSegment(Vector(0, 47.8, 0), Vector(0, 50.6, 0)),  # 34
    Part.LineSegment(Vector(0, 50.6, 0), Vector(6.2, 50.6, 0)),  # 35
    Part.LineSegment(Vector(12.4, 63.9, 0), Vector(12.4, 51.6, 0)),  # 36
    Part.LineSegment(Vector(12.4, 51.6, 0), Vector(7.4, 51.6, 0)),  # 37
    Part.LineSegment(Vector(7.4, 51.6, 0), Vector(7.4, 63.9, 0)),  # 38
    Part.LineSegment(Vector(7.4, 63.9, 0), Vector(12.4, 63.9, 0)),  # 39
], False)
sketch15.addConstraint([
    Sketcher.Constraint("Coincident", 0, 2, 1, 1),
    Sketcher.Constraint("Coincident", 1, 2, 2, 1),
    Sketcher.Constraint("Coincident", 2, 2, 3, 1),
    Sketcher.Constraint("Coincident", 3, 2, 0, 1),
    Sketcher.Constraint("Coincident", 4, 2, 5, 1),
    Sketcher.Constraint("Coincident", 5, 2, 6, 1),
    Sketcher.Constraint("Coincident", 6, 2, 7, 1),
    Sketcher.Constraint("Coincident", 7, 2, 4, 1),
    Sketcher.Constraint("Coincident", 8, 2, 9, 1),
    Sketcher.Constraint("Coincident", 9, 2, 10, 1),
    Sketcher.Constraint("Coincident", 10, 2, 11, 1),
    Sketcher.Constraint("Coincident", 11, 2, 8, 1),
    Sketcher.Constraint("Coincident", 12, 2, 13, 1),
    Sketcher.Constraint("Coincident", 13, 2, 14, 1),
    Sketcher.Constraint("Coincident", 14, 2, 15, 1),
    Sketcher.Constraint("Coincident", 15, 2, 12, 1),
    Sketcher.Constraint("Coincident", 16, 2, 17, 1),
    Sketcher.Constraint("Coincident", 17, 2, 18, 1),
    Sketcher.Constraint("Coincident", 18, 2, 19, 1),
    Sketcher.Constraint("Coincident", 19, 2, 16, 1),
    Sketcher.Constraint("Coincident", 20, 2, 21, 1),
    Sketcher.Constraint("Coincident", 21, 2, 22, 1),
    Sketcher.Constraint("Coincident", 22, 2, 23, 1),
    Sketcher.Constraint("Coincident", 23, 2, 20, 1),
    Sketcher.Constraint("Coincident", 24, 2, 25, 1),
    Sketcher.Constraint("Coincident", 25, 2, 26, 1),
    Sketcher.Constraint("Coincident", 26, 2, 27, 1),
    Sketcher.Constraint("Coincident", 27, 2, 24, 1),
    Sketcher.Constraint("Coincident", 28, 2, 29, 1),
    Sketcher.Constraint("Coincident", 29, 2, 30, 1),
    Sketcher.Constraint("Coincident", 30, 2, 31, 1),
    Sketcher.Constraint("Coincident", 31, 2, 28, 1),
    Sketcher.Constraint("Coincident", 32, 2, 33, 1),
    Sketcher.Constraint("Coincident", 33, 2, 34, 1),
    Sketcher.Constraint("Coincident", 34, 2, 35, 1),
    Sketcher.Constraint("Coincident", 35, 2, 32, 1),
    Sketcher.Constraint("Coincident", 36, 2, 37, 1),
    Sketcher.Constraint("Coincident", 37, 2, 38, 1),
    Sketcher.Constraint("Coincident", 38, 2, 39, 1),
    Sketcher.Constraint("Coincident", 39, 2, 36, 1),
    Sketcher.Constraint("Vertical", 0),
    Sketcher.Constraint("Horizontal", 1),
    Sketcher.Constraint("Vertical", 2),
    Sketcher.Constraint("Horizontal", 3),
    Sketcher.Constraint("Vertical", 4),
    Sketcher.Constraint("Horizontal", 5),
    Sketcher.Constraint("Vertical", 6),
    Sketcher.Constraint("Horizontal", 7),
    Sketcher.Constraint("Vertical", 8),
    Sketcher.Constraint("Horizontal", 9),
    Sketcher.Constraint("Vertical", 10),
    Sketcher.Constraint("Horizontal", 11),
    Sketcher.Constraint("Vertical", 12),
    Sketcher.Constraint("Horizontal", 13),
    Sketcher.Constraint("Vertical", 14),
    Sketcher.Constraint("Horizontal", 15),
    Sketcher.Constraint("Vertical", 16),
    Sketcher.Constraint("Horizontal", 17),
    Sketcher.Constraint("Vertical", 18),
    Sketcher.Constraint("Horizontal", 19),
    Sketcher.Constraint("Vertical", 20),
    Sketcher.Constraint("Horizontal", 21),
    Sketcher.Constraint("Vertical", 22),
    Sketcher.Constraint("Horizontal", 23),
    Sketcher.Constraint("Vertical", 24),
    Sketcher.Constraint("Horizontal", 25),
    Sketcher.Constraint("Vertical", 26),
    Sketcher.Constraint("Horizontal", 27),
    Sketcher.Constraint("Vertical", 28),
    Sketcher.Constraint("Horizontal", 29),
    Sketcher.Constraint("Vertical", 30),
    Sketcher.Constraint("Horizontal", 31),
    Sketcher.Constraint("Vertical", 32),
    Sketcher.Constraint("Horizontal", 33),
    Sketcher.Constraint("Vertical", 34),
    Sketcher.Constraint("Horizontal", 35),
    Sketcher.Constraint("Vertical", 36),
    Sketcher.Constraint("Horizontal", 37),
    Sketcher.Constraint("Vertical", 38),
    Sketcher.Constraint("Horizontal", 39),
    Sketcher.Constraint("PointOnObject", 33, 2, -2),
    Sketcher.Constraint("Horizontal", 17, 2, 20, 2),
    Sketcher.Constraint("Horizontal", 9, 2, 24, 2),
    Sketcher.Constraint("Horizontal", 15, 2, 38, 2),
    Sketcher.Constraint("Vertical", 2, 2, 16, 2),
    Sketcher.Constraint("Vertical", 15, 2, 20, 2),
    Sketcher.Constraint("Equal", 23, 28),
    Sketcher.Constraint("DistanceX", 13, 2, 13, 1, Q("7.7768 mm")),
    Sketcher.Constraint("DistanceX", 1, 2, 1, 1, Q("1.110971 mm")),
    Sketcher.Constraint("DistanceX", 5, 2, 5, 1, Q("1.851619 mm")),
    Sketcher.Constraint("DistanceX", 21, 2, 21, 1, Q("6.665828 mm")),
    Sketcher.Constraint("DistanceX", 37, 2, 37, 1, Q("4.999371 mm")),
    Sketcher.Constraint("DistanceY", 8, 2, 8, 1, Q("8.640889 mm")),
    Sketcher.Constraint("DistanceY", 16, 2, 16, 1, Q("10.615949 mm")),
    Sketcher.Constraint("DistanceY", 20, 2, 20, 1, Q("9.628419 mm")),
    Sketcher.Constraint("DistanceY", 32, 2, 32, 1, Q("2.839149 mm")),
    Sketcher.Constraint("DistanceY", -1, 1, 2, 2, Q("76.270599 mm")),
    Sketcher.Constraint("DistanceX", -1, 1, 8, 2, Q("9.875301 mm")),
    Sketcher.Constraint("DistanceX", 4, 2, 0, 2, Q("9.875301 mm")),
    Sketcher.Constraint("DistanceX", 9, 2, 4, 2, Q("5.678298 mm")),
    Sketcher.Constraint("DistanceX", 25, 2, 23, 2, Q("3.8884 mm")),
    Sketcher.Constraint("DistanceY", 11, 2, 32, 2, Q("2.098502 mm")),
    Sketcher.Constraint("DistanceX", 28, 2, 38, 2, Q("2.098502 mm")),
    Sketcher.Constraint("DistanceX", 9, 2, 9, 1, Q("12.467568 mm")),
    Sketcher.Constraint("DistanceX", 17, 2, 17, 1, Q("13.084774 mm")),
    Sketcher.Constraint("DistanceX", 25, 2, 25, 1, Q("5.616578 mm")),
    Sketcher.Constraint("DistanceX", 29, 2, 29, 1, Q("9.011212 mm")),
    Sketcher.Constraint("DistanceX", 33, 2, 33, 1, Q("6.172063 mm")),
    Sketcher.Constraint("DistanceY", 0, 2, 0, 1, Q("4.320444 mm")),
    Sketcher.Constraint("DistanceY", 4, 2, 4, 1, Q("2.468825 mm")),
    Sketcher.Constraint("DistanceY", 12, 2, 12, 1, Q("11.356596 mm")),
    Sketcher.Constraint("DistanceY", 24, 2, 24, 1, Q("7.406476 mm")),
    Sketcher.Constraint("DistanceY", 36, 2, 36, 1, Q("12.344127 mm")),
    Sketcher.Constraint("DistanceY", -1, 1, 4, 2, Q("56.766879 mm")),
    Sketcher.Constraint("DistanceY", -1, 1, 16, 2, Q("17.018791 mm")),
    Sketcher.Constraint("DistanceY", 8, 2, 1, 2, Q("34.933878 mm")),
    Sketcher.Constraint("DistanceY", 10, 2, 12, 2, Q("6.912711 mm")),
    Sketcher.Constraint("DistanceX", 20, 2, 17, 2, Q("5.061092 mm")),
    Sketcher.Constraint("DistanceX", 6, 2, 28, 2, Q("4.073562 mm")),
    Sketcher.Constraint("DistanceY", 4, 2, 28, 2, Q("9.628419 mm")),
])
pocket12 = body.newObject("PartDesign::Pocket", "Pocket011")
pocket12.Profile = sketch15
pocket12.Length = 55.324509
doc.recompute()

fillet = body.newObject("PartDesign::Fillet", "Fillet")
fillet.Base = (pocket12, edges_at(pocket12, [(0, 88.9, -60.675), (0, -6.35, -60.675)]))
fillet.Radius = Q("0.2 in")

doc.recompute()
